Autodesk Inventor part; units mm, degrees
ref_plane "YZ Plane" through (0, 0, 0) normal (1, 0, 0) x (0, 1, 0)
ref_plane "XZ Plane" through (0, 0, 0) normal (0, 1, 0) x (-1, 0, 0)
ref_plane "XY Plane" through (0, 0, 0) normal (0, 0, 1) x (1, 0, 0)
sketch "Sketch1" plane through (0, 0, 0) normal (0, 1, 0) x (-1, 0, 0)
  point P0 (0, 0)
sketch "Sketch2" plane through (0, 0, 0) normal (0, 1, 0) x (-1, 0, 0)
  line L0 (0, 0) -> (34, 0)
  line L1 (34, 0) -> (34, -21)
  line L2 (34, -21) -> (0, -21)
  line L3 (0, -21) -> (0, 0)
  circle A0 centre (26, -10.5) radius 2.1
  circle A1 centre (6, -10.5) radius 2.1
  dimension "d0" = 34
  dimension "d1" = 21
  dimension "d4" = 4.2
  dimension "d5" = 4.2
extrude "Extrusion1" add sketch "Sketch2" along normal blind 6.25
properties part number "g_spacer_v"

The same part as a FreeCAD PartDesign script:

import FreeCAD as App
import Part
import Sketcher
from FreeCAD import Vector

doc = App.newDocument("Part")
params = doc.addObject("Spreadsheet::Sheet", "Params")
for row, (alias, value) in enumerate([
    ("sketch1_diameter", "4.2 mm"),
    ("sketch1_width", "34 mm"),
    ("sketch1_height", "21 mm"),
    ("pad1_length", "6.25 mm"),
], start=1):
    params.set(f"A{row}", alias)
    params.set(f"B{row}", "=" + value)
    params.setAlias(f"B{row}", alias)

body = doc.addObject("PartDesign::Body", "Body")

# Sketch on XZ plane
sketch1 = doc.addObject("Sketcher::SketchObject", "Sketch")
body.addObject(sketch1)
sketch1.AttachmentSupport = (doc.XZ_Plane, [""])
sketch1.MapMode = "FlatFace"
sketch1.addGeometry(Part.LineSegment(Vector(-34, 0, 0), Vector(0, 0, 0)), False)
sketch1.addGeometry(Part.LineSegment(Vector(0, 0, 0), Vector(0, -21, 0)), False)
sketch1.addGeometry(Part.LineSegment(Vector(0, -21, 0), Vector(-34, -21, 0)), False)
sketch1.addGeometry(Part.LineSegment(Vector(-34, -21, 0), Vector(-34, 0, 0)), False)
sketch1.addGeometry(Part.Circle(Vector(-6, -10.5, 0), Vector(0, 0, 1), 2.1), False)
sketch1.addGeometry(Part.Circle(Vector(-26, -10.5, 0), Vector(0, 0, 1), 2.1), False)
sketch1.addConstraint(Sketcher.Constraint("Coincident", 0, 2, 1, 1))
sketch1.addConstraint(Sketcher.Constraint("Coincident", 1, 2, 2, 1))
sketch1.addConstraint(Sketcher.Constraint("Coincident", 2, 2, 3, 1))
sketch1.addConstraint(Sketcher.Constraint("Coincident", 3, 2, 0, 1))
sketch1.addConstraint(Sketcher.Constraint("Horizontal", 0))
sketch1.addConstraint(Sketcher.Constraint("Vertical", 1))
sketch1.addConstraint(Sketcher.Constraint("Horizontal", 2))
sketch1.addConstraint(Sketcher.Constraint("Vertical", 3))
sketch1.addConstraint(Sketcher.Constraint("Coincident", 0, 2, -1, 1))
sketch1.addConstraint(Sketcher.Constraint("Equal", 4, 5))
sketch1.addConstraint(Sketcher.Constraint("Horizontal", 4, 3, 5, 3))
sketch1.addConstraint(Sketcher.Constraint("Diameter", 4, 4.2))
sketch1.addConstraint(Sketcher.Constraint("DistanceX", 0, 1, 0, 2, 34.0))
sketch1.addConstraint(Sketcher.Constraint("DistanceY", 1, 2, 1, 1, 21.0))
sketch1.addConstraint(Sketcher.Constraint("DistanceX", 4, 3, -1, 1, 6.0))
sketch1.addConstraint(Sketcher.Constraint("DistanceX", 5, 3, -1, 1, 26.0))
sketch1.addConstraint(Sketcher.Constraint("DistanceY", 4, 3, -1, 1, 10.5))
sketch1.setExpression("Constraints[11]", "Params.sketch1_diameter")
sketch1.setExpression("Constraints[12]", "Params.sketch1_width")
sketch1.setExpression("Constraints[13]", "Params.sketch1_height")
pad1 = doc.addObject("PartDesign::Pad", "Pad")
body.addObject(pad1)
pad1.Profile = sketch1
pad1.setExpression("Length", "Params.pad1_length")
pad1.Reversed = True

doc.recompute()
